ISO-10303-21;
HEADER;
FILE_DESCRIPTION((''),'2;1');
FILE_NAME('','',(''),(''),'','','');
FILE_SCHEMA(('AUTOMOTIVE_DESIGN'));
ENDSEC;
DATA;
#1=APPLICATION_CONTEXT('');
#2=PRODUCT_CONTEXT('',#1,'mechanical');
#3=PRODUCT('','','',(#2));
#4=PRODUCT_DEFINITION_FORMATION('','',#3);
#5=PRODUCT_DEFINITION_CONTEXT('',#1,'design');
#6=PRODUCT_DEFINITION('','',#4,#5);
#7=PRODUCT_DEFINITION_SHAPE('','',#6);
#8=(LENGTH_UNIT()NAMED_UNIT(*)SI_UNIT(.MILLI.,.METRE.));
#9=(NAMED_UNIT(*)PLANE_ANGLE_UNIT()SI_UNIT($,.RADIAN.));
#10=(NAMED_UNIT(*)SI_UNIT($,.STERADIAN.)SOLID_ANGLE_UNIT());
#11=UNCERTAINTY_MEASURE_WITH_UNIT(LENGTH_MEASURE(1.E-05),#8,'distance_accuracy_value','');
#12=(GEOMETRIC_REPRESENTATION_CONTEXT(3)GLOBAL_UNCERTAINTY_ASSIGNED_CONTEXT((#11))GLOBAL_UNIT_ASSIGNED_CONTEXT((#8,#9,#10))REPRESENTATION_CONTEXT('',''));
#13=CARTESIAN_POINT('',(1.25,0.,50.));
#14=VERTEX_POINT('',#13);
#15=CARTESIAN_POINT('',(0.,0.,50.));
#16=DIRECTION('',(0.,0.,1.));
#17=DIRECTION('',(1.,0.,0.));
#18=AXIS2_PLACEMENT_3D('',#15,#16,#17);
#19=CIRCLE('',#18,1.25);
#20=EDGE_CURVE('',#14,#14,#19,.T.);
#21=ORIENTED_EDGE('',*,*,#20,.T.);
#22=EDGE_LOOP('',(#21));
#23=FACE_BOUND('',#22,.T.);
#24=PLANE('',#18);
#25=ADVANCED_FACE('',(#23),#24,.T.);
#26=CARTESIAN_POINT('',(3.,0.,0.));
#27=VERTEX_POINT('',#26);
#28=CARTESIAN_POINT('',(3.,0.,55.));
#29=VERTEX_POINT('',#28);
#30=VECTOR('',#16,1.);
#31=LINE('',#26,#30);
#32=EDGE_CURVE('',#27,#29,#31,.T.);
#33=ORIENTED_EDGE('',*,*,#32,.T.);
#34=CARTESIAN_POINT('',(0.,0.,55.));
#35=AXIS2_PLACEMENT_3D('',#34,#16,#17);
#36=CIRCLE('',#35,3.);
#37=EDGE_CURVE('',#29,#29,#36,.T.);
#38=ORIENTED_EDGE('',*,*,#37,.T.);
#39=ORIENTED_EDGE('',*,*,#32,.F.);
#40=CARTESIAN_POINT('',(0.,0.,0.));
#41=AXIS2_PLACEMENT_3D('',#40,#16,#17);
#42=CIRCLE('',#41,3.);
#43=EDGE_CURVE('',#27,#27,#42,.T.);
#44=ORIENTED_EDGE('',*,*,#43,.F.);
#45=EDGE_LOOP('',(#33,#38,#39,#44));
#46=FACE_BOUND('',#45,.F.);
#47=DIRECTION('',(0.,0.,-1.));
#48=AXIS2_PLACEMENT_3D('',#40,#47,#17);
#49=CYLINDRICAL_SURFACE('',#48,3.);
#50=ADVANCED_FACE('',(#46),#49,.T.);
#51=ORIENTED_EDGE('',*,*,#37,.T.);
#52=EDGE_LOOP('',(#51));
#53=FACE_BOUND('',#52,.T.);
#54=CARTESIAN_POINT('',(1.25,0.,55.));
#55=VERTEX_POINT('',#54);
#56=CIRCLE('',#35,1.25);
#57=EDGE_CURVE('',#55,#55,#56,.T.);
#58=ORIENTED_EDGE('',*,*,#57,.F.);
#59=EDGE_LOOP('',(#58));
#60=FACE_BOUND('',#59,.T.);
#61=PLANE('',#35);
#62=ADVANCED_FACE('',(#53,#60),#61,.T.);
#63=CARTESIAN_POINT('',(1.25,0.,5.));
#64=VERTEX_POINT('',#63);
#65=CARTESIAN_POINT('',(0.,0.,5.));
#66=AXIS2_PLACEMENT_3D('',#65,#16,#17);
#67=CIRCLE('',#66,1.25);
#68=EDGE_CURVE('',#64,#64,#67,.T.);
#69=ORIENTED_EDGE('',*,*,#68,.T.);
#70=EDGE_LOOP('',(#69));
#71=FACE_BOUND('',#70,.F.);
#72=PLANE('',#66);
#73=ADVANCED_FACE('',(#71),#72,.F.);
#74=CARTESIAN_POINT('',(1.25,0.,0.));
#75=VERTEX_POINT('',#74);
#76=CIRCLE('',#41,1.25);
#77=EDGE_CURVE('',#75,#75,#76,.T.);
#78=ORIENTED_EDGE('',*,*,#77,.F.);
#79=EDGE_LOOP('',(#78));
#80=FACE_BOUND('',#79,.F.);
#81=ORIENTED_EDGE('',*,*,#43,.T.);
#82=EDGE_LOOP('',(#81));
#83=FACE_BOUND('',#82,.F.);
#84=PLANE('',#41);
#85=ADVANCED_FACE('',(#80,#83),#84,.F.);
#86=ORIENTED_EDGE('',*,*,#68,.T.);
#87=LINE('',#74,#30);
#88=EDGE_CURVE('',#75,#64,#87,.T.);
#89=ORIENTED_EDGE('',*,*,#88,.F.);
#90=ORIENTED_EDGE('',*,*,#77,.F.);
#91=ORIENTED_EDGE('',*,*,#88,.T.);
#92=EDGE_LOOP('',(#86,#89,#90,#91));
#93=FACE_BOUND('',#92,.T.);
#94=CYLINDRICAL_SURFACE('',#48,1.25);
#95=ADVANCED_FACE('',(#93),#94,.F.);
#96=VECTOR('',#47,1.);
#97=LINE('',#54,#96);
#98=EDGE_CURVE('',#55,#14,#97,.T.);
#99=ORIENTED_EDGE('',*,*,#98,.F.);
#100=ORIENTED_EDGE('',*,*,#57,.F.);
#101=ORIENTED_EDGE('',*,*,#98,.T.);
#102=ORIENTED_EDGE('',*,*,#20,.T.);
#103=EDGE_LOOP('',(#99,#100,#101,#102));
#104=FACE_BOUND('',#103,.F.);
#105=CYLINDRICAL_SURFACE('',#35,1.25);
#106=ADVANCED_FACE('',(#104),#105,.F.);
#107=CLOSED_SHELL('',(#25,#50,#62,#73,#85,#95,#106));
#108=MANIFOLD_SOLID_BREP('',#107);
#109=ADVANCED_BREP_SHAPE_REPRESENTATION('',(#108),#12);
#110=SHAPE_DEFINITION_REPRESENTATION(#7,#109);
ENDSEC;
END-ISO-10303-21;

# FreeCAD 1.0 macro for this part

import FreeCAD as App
import Part
import Sketcher

V = App.Vector
Q = App.Units.Quantity

doc = App.newDocument("Part")
body = doc.addObject("PartDesign::Body", "Body")

# Sketch on XY plane
sketch1 = doc.addObject("Sketcher::SketchObject", "Sketch")
body.addObject(sketch1)
sketch1.AttachmentSupport = (doc.XY_Plane, [""])
sketch1.MapMode = "FlatFace"
sketch1.addGeometry(Part.Circle(V(0, 0, 0), V(0, 0, 1), 3), False)
sketch1.addConstraint([
    Sketcher.Constraint("Coincident", 0, 3, -1, 1),
    Sketcher.Constraint("Diameter", 0, Q("6 mm")),
])
pad1 = doc.addObject("PartDesign::Pad", "Pad")
body.addObject(pad1)
pad1.Profile = sketch1
pad1.Length = 55

# Sketch on XY plane
sketch2 = doc.addObject("Sketcher::SketchObject", "Sketch001")
body.addObject(sketch2)
sketch2.AttachmentSupport = (doc.XY_Plane, [""])
sketch2.MapMode = "FlatFace"
sketch2.AttachmentOffset = App.Placement(V(0, 0, 55), App.Rotation())
sketch2.addGeometry(Part.Circle(V(0, 0, 0), V(0, 0, 1), 1.2), False)
sketch2.addConstraint([
    Sketcher.Constraint("Coincident", 0, 3, -1, 1),
    Sketcher.Constraint("Diameter", 0, Q("2.5 mm")),
])
pocket1 = doc.addObject("PartDesign::Pocket", "Pocket")
body.addObject(pocket1)
pocket1.Profile = sketch2
pocket1.Length = 5

# Sketch on XY plane
sketch3 = doc.addObject("Sketcher::SketchObject", "Sketch002")
body.addObject(sketch3)
sketch3.AttachmentSupport = (doc.XY_Plane, [""])
sketch3.MapMode = "FlatFace"
sketch3.addGeometry(Part.Circle(V(0, 0, 0), V(0, 0, 1), 1.2), False)
sketch3.addConstraint([
    Sketcher.Constraint("Coincident", 0, 3, -1, 1),
    Sketcher.Constraint("Diameter", 0, Q("2.5 mm")),
])
pocket2 = doc.addObject("PartDesign::Pocket", "Pocket001")
body.addObject(pocket2)
pocket2.Profile = sketch3
pocket2.Length = 5
pocket2.Reversed = True

doc.recompute()
